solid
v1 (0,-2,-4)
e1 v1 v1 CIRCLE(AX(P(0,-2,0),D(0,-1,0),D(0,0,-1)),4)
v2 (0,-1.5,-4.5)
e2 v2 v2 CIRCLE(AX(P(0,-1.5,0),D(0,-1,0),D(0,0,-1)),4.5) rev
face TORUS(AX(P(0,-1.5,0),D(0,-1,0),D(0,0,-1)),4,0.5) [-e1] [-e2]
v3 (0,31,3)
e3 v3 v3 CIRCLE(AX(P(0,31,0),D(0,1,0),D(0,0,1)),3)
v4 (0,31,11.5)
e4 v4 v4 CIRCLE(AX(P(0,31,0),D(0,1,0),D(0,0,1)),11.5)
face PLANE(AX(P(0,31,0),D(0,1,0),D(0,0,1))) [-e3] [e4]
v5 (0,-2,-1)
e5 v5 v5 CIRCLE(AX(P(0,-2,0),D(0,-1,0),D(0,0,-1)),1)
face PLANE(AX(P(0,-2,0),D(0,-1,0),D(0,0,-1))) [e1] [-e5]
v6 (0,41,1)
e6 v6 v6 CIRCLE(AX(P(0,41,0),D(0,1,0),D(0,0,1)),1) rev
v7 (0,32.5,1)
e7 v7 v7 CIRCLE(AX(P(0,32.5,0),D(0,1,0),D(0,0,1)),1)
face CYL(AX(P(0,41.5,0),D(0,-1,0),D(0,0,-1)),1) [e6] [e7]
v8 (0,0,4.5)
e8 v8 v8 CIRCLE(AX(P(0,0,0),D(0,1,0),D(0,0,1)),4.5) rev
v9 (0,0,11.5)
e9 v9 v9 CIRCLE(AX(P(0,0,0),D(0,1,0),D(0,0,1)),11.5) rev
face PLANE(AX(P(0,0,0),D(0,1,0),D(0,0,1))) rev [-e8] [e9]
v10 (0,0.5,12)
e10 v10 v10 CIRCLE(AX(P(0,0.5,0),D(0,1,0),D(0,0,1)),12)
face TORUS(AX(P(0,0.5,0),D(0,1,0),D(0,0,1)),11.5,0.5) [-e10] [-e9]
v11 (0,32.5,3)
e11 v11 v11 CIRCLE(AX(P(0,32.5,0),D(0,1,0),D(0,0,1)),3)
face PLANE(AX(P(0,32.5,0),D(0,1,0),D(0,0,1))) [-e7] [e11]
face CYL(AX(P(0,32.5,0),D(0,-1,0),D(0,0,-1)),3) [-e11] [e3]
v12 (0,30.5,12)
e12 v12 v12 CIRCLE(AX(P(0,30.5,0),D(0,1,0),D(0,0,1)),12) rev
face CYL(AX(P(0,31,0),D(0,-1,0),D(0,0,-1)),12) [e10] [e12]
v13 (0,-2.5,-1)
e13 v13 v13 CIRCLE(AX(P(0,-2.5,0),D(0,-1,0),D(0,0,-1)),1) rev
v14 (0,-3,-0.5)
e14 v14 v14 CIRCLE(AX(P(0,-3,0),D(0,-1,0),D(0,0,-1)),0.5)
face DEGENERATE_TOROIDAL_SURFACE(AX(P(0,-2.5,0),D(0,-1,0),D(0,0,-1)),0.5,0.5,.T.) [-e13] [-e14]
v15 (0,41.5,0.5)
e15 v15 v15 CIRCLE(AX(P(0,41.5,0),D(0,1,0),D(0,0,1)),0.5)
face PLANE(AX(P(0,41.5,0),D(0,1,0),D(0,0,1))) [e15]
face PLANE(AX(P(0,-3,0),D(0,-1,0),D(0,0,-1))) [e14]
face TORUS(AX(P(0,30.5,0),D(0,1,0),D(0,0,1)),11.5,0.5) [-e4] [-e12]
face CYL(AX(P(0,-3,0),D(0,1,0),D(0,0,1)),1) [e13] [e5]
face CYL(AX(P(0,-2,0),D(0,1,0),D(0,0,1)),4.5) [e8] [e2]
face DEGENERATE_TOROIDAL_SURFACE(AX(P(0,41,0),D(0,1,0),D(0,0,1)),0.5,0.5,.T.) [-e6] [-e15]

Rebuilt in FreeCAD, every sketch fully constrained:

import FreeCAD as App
import Part
import Sketcher


def edges_at(feature, points):
    """Names of the edges that pass closest to the given points."""
    edges = feature.Shape.Edges
    near = lambda p: min(range(len(edges)), key=lambda i: edges[i].distToShape(Part.Vertex(*p))[0])
    return sorted({f"Edge{near(p) + 1}" for p in points})

doc = App.newDocument("Part")
body = doc.addObject("PartDesign::Body", "Body")

sketch1 = doc.addObject("Sketcher::SketchObject", "Sketch")
body.addObject(sketch1)
sketch1.AttachmentSupport = (doc.XZ_Plane, [""])
sketch1.MapMode = "FlatFace"
sketch1.addGeometry(Part.Circle(App.Vector(0, 0, 0), App.Vector(0, 0, 1), 12), False)
sketch1.addConstraint([
    Sketcher.Constraint("Coincident", 0, 3, -1, 1),
    Sketcher.Constraint("Diameter", 0, 24.0),
])
pad1 = doc.addObject("PartDesign::Pad", "Pad")
body.addObject(pad1)
pad1.Profile = sketch1
pad1.Length = 31
pad1.Reversed = True

sketch2 = doc.addObject("Sketcher::SketchObject", "Sketch001")
body.addObject(sketch2)
sketch2.AttachmentSupport = (doc.XZ_Plane, [""])
sketch2.MapMode = "FlatFace"
sketch2.AttachmentOffset = App.Placement(App.Vector(0, 0, -31), App.Rotation())
sketch2.addGeometry(Part.Circle(App.Vector(0, 0, 0), App.Vector(0, 0, 1), 3), False)
sketch2.addConstraint([
    Sketcher.Constraint("Coincident", 0, 3, -1, 1),
    Sketcher.Constraint("Diameter", 0, 6.0),
])
pad2 = doc.addObject("PartDesign::Pad", "Pad001")
body.addObject(pad2)
pad2.Profile = sketch2
pad2.Length = 1.5
pad2.Reversed = True

sketch3 = doc.addObject("Sketcher::SketchObject", "Sketch002")
body.addObject(sketch3)
sketch3.AttachmentSupport = (doc.XZ_Plane, [""])
sketch3.MapMode = "FlatFace"
sketch3.AttachmentOffset = App.Placement(App.Vector(0, 0, -32.5), App.Rotation())
sketch3.addGeometry(Part.Circle(App.Vector(0, 0, 0), App.Vector(0, 0, 1), 1), False)
sketch3.addConstraint([
    Sketcher.Constraint("Coincident", 0, 3, -1, 1),
    Sketcher.Constraint("Diameter", 0, 2.0),
])
pad3 = doc.addObject("PartDesign::Pad", "Pad002")
body.addObject(pad3)
pad3.Profile = sketch3
pad3.Length = 9
pad3.Reversed = True
doc.recompute()

fillet = doc.addObject("PartDesign::Fillet", "Fillet")
body.addObject(fillet)
fillet.Base = (pad3, edges_at(pad3, [(0, 41.5, -1)]))
fillet.Radius = 0.5
doc.recompute()

fillet2 = doc.addObject("PartDesign::Fillet", "Fillet001")
body.addObject(fillet2)
fillet2.Base = (fillet, edges_at(fillet, [(0, 0, -12), (0, 31, -12)]))
fillet2.Radius = 0.5

sketch4 = doc.addObject("Sketcher::SketchObject", "Sketch003")
body.addObject(sketch4)
sketch4.AttachmentSupport = (doc.XZ_Plane, [""])
sketch4.MapMode = "FlatFace"
sketch4.addGeometry(Part.Circle(App.Vector(0, 0, 0), App.Vector(0, 0, 1), 4.5), False)
sketch4.addConstraint([
    Sketcher.Constraint("Coincident", 0, 3, -1, 1),
    Sketcher.Constraint("Diameter", 0, 9.0),
])
pad4 = doc.addObject("PartDesign::Pad", "Pad003")
body.addObject(pad4)
pad4.Profile = sketch4
pad4.Length = 2

sketch5 = doc.addObject("Sketcher::SketchObject", "Sketch004")
body.addObject(sketch5)
sketch5.AttachmentSupport = (doc.XZ_Plane, [""])
sketch5.MapMode = "FlatFace"
sketch5.AttachmentOffset = App.Placement(App.Vector(0, 0, 3), App.Rotation())
sketch5.addGeometry(Part.Circle(App.Vector(0, 0, 0), App.Vector(0, 0, 1), 1), False)
sketch5.addConstraint([
    Sketcher.Constraint("Coincident", 0, 3, -1, 1),
    Sketcher.Constraint("Diameter", 0, 2.0),
])
pad5 = doc.addObject("PartDesign::Pad", "Pad004")
body.addObject(pad5)
pad5.Profile = sketch5
pad5.Length = 1
pad5.Reversed = True
doc.recompute()

fillet3 = doc.addObject("PartDesign::Fillet", "Fillet002")
body.addObject(fillet3)
fillet3.Base = (pad5, edges_at(pad5, [(0, -2, -4.5), (0, -3, -1)]))
fillet3.Radius = 0.5

doc.recompute()
